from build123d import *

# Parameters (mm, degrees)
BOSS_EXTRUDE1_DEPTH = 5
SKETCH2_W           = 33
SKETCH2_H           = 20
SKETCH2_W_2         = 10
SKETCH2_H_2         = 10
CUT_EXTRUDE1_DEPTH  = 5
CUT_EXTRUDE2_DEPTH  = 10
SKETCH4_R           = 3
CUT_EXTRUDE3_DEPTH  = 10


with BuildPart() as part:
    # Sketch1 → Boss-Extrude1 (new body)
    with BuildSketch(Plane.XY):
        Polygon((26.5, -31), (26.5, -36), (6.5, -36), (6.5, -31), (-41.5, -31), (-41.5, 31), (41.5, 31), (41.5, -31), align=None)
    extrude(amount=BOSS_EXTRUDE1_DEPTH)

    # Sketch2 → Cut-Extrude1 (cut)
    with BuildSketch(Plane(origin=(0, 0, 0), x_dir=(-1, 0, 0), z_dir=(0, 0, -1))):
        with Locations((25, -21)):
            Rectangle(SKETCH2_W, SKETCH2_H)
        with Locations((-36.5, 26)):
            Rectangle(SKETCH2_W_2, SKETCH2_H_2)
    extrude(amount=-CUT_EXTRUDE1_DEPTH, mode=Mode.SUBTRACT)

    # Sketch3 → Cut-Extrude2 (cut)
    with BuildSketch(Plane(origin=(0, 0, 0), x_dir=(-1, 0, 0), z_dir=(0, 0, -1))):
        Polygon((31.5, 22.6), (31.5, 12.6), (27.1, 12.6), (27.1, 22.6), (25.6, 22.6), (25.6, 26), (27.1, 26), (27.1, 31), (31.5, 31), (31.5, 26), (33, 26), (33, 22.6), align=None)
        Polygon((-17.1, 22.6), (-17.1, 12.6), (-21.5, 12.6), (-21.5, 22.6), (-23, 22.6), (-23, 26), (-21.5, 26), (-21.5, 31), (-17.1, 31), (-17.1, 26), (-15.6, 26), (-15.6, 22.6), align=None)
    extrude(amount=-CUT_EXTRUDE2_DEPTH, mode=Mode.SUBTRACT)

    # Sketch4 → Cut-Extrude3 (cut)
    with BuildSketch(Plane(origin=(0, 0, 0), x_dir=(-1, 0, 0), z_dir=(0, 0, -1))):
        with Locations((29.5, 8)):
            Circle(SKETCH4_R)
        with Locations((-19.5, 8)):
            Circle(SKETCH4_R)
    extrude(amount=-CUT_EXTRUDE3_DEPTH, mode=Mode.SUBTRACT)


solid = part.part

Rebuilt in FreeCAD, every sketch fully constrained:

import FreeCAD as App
import Part
import Sketcher
Q = App.Units.Quantity


def add_polygon(sketch, points):
    """Adds a closed chain of lines whose ends are joined by coincident constraints."""
    first, n = sketch.GeometryCount, len(points)
    for a, b in zip(points, points[1:] + points[:1]):
        sketch.addGeometry(Part.LineSegment(App.Vector(*a, 0), App.Vector(*b, 0)), False)
    for i in range(n):
        sketch.addConstraint(Sketcher.Constraint("Coincident", first + i, 2, first + (i + 1) % n, 1))

doc = App.newDocument("Part")
body = doc.addObject("PartDesign::Body", "Body")

sketch1 = body.newObject("Sketcher::SketchObject", "Sketch")
sketch1.AttachmentSupport = (doc.getObject("XY_Plane"), [""])
sketch1.MapMode = "FlatFace"
add_polygon(sketch1, [(26, -36), (26, -31), (42, -31), (42, 31), (-42, 31), (-42, -31), (6, -31), (6, -36)])
sketch1.addConstraint([
    Sketcher.Constraint("Vertical", 0),
    Sketcher.Constraint("Horizontal", 1),
    Sketcher.Constraint("Vertical", 2),
    Sketcher.Constraint("Horizontal", 3),
    Sketcher.Constraint("Vertical", 4),
    Sketcher.Constraint("Horizontal", 5),
    Sketcher.Constraint("Vertical", 6),
    Sketcher.Constraint("Horizontal", 7),
    Sketcher.Constraint("Symmetric", 1, 2, 3, 2, -1, 1),
    Sketcher.Constraint("Horizontal", 1, 2, 4, 2),
    Sketcher.Constraint("DistanceX", 1, 1, 1, 2, Q("15 mm")),
    Sketcher.Constraint("DistanceX", 3, 2, 3, 1, Q("83 mm")),
    Sketcher.Constraint("DistanceX", 5, 1, 5, 2, Q("48 mm")),
    Sketcher.Constraint("DistanceY", 0, 1, 0, 2, Q("5 mm")),
    Sketcher.Constraint("DistanceY", 2, 1, 2, 2, Q("62 mm")),
])
pad1 = body.newObject("PartDesign::Pad", "Pad")
pad1.Profile = sketch1
pad1.Length = 5

sketch2 = body.newObject("Sketcher::SketchObject", "Sketch001")
sketch2.AttachmentSupport = (doc.getObject("XY_Plane"), [""])
sketch2.MapMode = "FlatFace"
add_polygon(sketch2, [(-8, -11), (-8, -31), (-42, -31), (-42, -11)])
add_polygon(sketch2, [(42, 31), (42, 21), (32, 21), (32, 31)])
sketch2.addConstraint([
    Sketcher.Constraint("Vertical", 0),
    Sketcher.Constraint("Horizontal", 1),
    Sketcher.Constraint("Vertical", 2),
    Sketcher.Constraint("Horizontal", 3),
    Sketcher.Constraint("Vertical", 4),
    Sketcher.Constraint("Horizontal", 5),
    Sketcher.Constraint("Vertical", 6),
    Sketcher.Constraint("Horizontal", 7),
    Sketcher.Constraint("Symmetric", 1, 2, 7, 2, -1, 1),
    Sketcher.Constraint("Equal", 7, 4),
    Sketcher.Constraint("DistanceX", 1, 2, 1, 1, Q("33 mm")),
    Sketcher.Constraint("DistanceX", 5, 2, 5, 1, Q("10 mm")),
    Sketcher.Constraint("DistanceY", 0, 2, 0, 1, Q("20 mm")),
    Sketcher.Constraint("DistanceY", 0, 2, -1, 1, Q("31 mm")),
    Sketcher.Constraint("DistanceX", 3, 2, 4, 2, Q("50 mm")),
])
pocket1 = body.newObject("PartDesign::Pocket", "Pocket")
pocket1.Profile = sketch2
pocket1.Length = 5
pocket1.Reversed = True

sketch3 = body.newObject("Sketcher::SketchObject", "Sketch002")
sketch3.AttachmentSupport = (doc.getObject("XY_Plane"), [""])
sketch3.MapMode = "FlatFace"
add_polygon(sketch3, [(-31.5, 12.6), (-31.5, 22.6), (-33, 22.6), (-33, 26), (-31.5, 26), (-31.5, 31), (-27.1, 31), (-27.1, 26), (-25.6, 26), (-25.6, 22.6), (-27.1, 22.6), (-27.1, 12.6)])
add_polygon(sketch3, [(17.1, 12.6), (17.1, 22.6), (15.6, 22.6), (15.6, 26), (17.1, 26), (17.1, 31), (21.5, 31), (21.5, 26), (23, 26), (23, 22.6), (21.5, 22.6), (21.5, 12.6)])
sketch3.addConstraint([
    Sketcher.Constraint("Vertical", 0),
    Sketcher.Constraint("Horizontal", 1),
    Sketcher.Constraint("Vertical", 2),
    Sketcher.Constraint("Horizontal", 3),
    Sketcher.Constraint("Vertical", 4),
    Sketcher.Constraint("Horizontal", 5),
    Sketcher.Constraint("Vertical", 6),
    Sketcher.Constraint("Horizontal", 7),
    Sketcher.Constraint("Vertical", 8),
    Sketcher.Constraint("Horizontal", 9),
    Sketcher.Constraint("Vertical", 10),
    Sketcher.Constraint("Horizontal", 11),
    Sketcher.Constraint("Vertical", 12),
    Sketcher.Constraint("Horizontal", 13),
    Sketcher.Constraint("Vertical", 14),
    Sketcher.Constraint("Horizontal", 15),
    Sketcher.Constraint("Vertical", 16),
    Sketcher.Constraint("Horizontal", 17),
    Sketcher.Constraint("Vertical", 18),
    Sketcher.Constraint("Horizontal", 19),
    Sketcher.Constraint("Vertical", 20),
    Sketcher.Constraint("Horizontal", 21),
    Sketcher.Constraint("Vertical", 22),
    Sketcher.Constraint("Horizontal", 23),
    Sketcher.Constraint("Horizontal", 3, 2, 6, 2),
    Sketcher.Constraint("Horizontal", 1, 2, 8, 2),
    Sketcher.Constraint("Horizontal", 9, 2, 12, 2),
    Sketcher.Constraint("Horizontal", 7, 2, 14, 2),
    Sketcher.Constraint("Horizontal", 5, 2, 16, 2),
    Sketcher.Constraint("Horizontal", 15, 2, 18, 2),
    Sketcher.Constraint("Horizontal", 13, 2, 20, 2),
    Sketcher.Constraint("Horizontal", 11, 2, 22, 2),
    Sketcher.Constraint("Vertical", 0, 2, 3, 2),
    Sketcher.Constraint("Vertical", 6, 2, 9, 2),
    Sketcher.Constraint("Vertical", 12, 2, 15, 2),
    Sketcher.Constraint("Vertical", 18, 2, 21, 2),
    Sketcher.Constraint("Equal", 3, 7),
    Sketcher.Constraint("Equal", 9, 13),
    Sketcher.Constraint("Equal", 11, 17),
    Sketcher.Constraint("Equal", 15, 19),
    Sketcher.Constraint("DistanceY", 0, 1, 0, 2, Q("10 mm")),
    Sketcher.Constraint("DistanceY", 4, 1, 4, 2, Q("5 mm")),
    Sketcher.Constraint("DistanceX", 1, 2, 1, 1, Q("1.5 mm")),
    Sketcher.Constraint("DistanceX", 5, 1, 5, 2, Q("4.4 mm")),
    Sketcher.Constraint("DistanceY", 2, 1, 2, 2, Q("3.4 mm")),
    Sketcher.Constraint("DistanceX", 1, 2, -1, 1, Q("33 mm")),
    Sketcher.Constraint("DistanceY", -1, 1, 2, 2, Q("26 mm")),
    Sketcher.Constraint("DistanceX", -1, 1, 19, 2, Q("23 mm")),
])
pocket2 = body.newObject("PartDesign::Pocket", "Pocket001")
pocket2.Profile = sketch3
pocket2.Length = 10
pocket2.Reversed = True

sketch4 = body.newObject("Sketcher::SketchObject", "Sketch003")
sketch4.AttachmentSupport = (doc.getObject("XY_Plane"), [""])
sketch4.MapMode = "FlatFace"
sketch4.addGeometry([
    Part.Circle(App.Vector(-29.5, 8, 0), App.Vector(0, 0, 1), 3),
    Part.Circle(App.Vector(19.5, 8, 0), App.Vector(0, 0, 1), 3),
], False)
sketch4.addConstraint([
    Sketcher.Constraint("Equal", 0, 1),
    Sketcher.Constraint("Horizontal", 0, 3, 1, 3),
    Sketcher.Constraint("Diameter", 0, Q("6 mm")),
    Sketcher.Constraint("DistanceY", -1, 1, 0, 3, Q("8 mm")),
    Sketcher.Constraint("DistanceX", 0, 3, 1, 3, Q("49 mm")),
    Sketcher.Constraint("DistanceX", 0, 3, -1, 1, Q("29.5 mm")),
])
pocket3 = body.newObject("PartDesign::Pocket", "Pocket002")
pocket3.Profile = sketch4
pocket3.Length = 10
pocket3.Reversed = True

doc.recompute()
